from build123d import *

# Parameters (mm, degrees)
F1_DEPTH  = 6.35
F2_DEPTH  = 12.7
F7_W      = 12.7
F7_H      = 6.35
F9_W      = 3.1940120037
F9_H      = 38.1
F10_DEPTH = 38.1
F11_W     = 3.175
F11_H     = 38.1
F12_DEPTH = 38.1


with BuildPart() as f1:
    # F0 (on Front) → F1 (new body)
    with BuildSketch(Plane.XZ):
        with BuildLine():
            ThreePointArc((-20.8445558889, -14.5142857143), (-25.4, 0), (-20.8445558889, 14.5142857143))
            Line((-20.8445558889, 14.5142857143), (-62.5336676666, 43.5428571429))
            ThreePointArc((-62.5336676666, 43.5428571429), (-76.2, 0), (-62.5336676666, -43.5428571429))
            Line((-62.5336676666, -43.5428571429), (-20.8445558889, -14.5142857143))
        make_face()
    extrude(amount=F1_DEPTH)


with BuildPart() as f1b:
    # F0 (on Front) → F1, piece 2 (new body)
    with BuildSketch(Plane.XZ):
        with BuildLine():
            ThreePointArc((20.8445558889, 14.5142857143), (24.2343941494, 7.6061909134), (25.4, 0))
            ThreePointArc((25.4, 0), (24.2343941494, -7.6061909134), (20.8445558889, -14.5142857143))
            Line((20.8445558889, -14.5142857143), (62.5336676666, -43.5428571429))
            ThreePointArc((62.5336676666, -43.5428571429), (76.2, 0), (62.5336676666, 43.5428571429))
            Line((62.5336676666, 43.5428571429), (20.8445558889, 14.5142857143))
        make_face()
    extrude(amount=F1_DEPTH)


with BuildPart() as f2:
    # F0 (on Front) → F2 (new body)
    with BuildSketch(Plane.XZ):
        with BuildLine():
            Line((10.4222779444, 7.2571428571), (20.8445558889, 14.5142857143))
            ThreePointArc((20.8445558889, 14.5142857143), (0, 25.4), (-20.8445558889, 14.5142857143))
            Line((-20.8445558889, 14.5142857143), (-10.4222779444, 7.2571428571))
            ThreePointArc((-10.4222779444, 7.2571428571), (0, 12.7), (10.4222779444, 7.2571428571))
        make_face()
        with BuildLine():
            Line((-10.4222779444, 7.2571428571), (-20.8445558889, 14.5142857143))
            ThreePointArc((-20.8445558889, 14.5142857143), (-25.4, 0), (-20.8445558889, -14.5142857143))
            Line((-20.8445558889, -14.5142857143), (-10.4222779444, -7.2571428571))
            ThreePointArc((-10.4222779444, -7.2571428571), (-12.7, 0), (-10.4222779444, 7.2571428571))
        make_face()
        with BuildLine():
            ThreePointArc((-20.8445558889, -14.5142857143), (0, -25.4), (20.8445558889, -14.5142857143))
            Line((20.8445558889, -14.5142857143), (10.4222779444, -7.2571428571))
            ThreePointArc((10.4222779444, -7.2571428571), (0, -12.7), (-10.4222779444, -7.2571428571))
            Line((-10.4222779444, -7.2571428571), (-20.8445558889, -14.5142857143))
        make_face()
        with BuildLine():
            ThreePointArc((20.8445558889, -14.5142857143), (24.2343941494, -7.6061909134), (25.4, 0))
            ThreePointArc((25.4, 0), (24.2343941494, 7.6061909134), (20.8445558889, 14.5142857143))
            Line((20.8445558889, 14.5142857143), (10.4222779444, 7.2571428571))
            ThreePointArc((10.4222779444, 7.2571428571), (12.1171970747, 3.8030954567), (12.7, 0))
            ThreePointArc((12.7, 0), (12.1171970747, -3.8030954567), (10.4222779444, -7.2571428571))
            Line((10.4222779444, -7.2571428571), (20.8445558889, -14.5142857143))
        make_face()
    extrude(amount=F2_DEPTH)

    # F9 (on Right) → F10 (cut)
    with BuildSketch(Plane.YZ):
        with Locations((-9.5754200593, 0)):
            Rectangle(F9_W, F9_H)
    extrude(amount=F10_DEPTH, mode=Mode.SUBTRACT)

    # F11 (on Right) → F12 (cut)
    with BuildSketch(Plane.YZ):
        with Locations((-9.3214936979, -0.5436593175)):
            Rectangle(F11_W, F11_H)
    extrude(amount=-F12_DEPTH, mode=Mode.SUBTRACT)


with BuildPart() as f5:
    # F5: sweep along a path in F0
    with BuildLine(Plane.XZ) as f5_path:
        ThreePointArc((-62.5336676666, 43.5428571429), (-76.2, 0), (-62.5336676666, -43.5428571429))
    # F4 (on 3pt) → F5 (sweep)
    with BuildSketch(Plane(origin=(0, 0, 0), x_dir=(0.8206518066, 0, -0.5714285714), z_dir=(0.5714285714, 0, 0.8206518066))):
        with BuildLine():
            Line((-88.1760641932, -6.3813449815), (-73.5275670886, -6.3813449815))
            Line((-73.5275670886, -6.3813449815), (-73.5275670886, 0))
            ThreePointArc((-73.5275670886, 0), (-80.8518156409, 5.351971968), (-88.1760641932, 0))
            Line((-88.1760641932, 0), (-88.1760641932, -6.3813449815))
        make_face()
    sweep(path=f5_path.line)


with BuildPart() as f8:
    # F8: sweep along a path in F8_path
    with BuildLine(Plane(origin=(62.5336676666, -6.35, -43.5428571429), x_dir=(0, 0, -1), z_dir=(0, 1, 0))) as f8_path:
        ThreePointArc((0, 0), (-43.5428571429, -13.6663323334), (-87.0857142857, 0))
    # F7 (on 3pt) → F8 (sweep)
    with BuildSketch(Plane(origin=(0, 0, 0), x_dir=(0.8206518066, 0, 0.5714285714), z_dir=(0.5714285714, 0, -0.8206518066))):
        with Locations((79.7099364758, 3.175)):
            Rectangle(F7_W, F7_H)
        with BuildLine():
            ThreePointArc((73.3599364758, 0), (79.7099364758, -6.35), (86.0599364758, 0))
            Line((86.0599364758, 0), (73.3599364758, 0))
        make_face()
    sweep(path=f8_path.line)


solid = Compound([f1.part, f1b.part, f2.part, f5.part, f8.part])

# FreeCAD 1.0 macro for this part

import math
import FreeCAD as App
import Part
import Sketcher
from FreeCAD import Vector
Q = App.Units.Quantity


def add_polygon(sketch, points):
    """Adds a closed chain of lines whose ends are joined by coincident constraints."""
    first, n = sketch.GeometryCount, len(points)
    for a, b in zip(points, points[1:] + points[:1]):
        sketch.addGeometry(Part.LineSegment(App.Vector(*a, 0), App.Vector(*b, 0)), False)
    for i in range(n):
        sketch.addConstraint(Sketcher.Constraint("Coincident", first + i, 2, first + (i + 1) % n, 1))

doc = App.newDocument("Part")
body = doc.addObject("PartDesign::Body", "Body")

# Sketch on XZ plane
sketch1 = body.newObject("Sketcher::SketchObject", "Sketch")
sketch1.AttachmentSupport = (doc.getObject("XZ_Plane"), [""])
sketch1.MapMode = "FlatFace"
sketch1.addGeometry([
    Part.ArcOfCircle(Part.Circle(Vector(0, 0, 0), Vector(0, 0, 1), 25), math.radians(145), math.radians(215)),
    Part.LineSegment(Vector(-21, 15, 0), Vector(-63, 44, 0)),
    Part.ArcOfCircle(Part.Circle(Vector(0, 0, 0), Vector(0, 0, 1), 76), math.radians(145), math.radians(215)),
    Part.LineSegment(Vector(-63, -44, 0), Vector(-21, -15, 0)),
], False)
sketch1.addConstraint([
    Sketcher.Constraint("Coincident", 0, 1, 1, 1),
    Sketcher.Constraint("Coincident", 1, 2, 2, 1),
    Sketcher.Constraint("Coincident", 2, 2, 3, 1),
    Sketcher.Constraint("Coincident", 3, 2, 0, 2),
    Sketcher.Constraint("Coincident", 0, 3, -1, 1),
    Sketcher.Constraint("Coincident", 2, 3, -1, 1),
    Sketcher.Constraint("Vertical", 1, 2, 2, 2),
    Sketcher.Constraint("Vertical", 0, 1, 3, 2),
    Sketcher.Constraint("Radius", 0, Q("1 in")),
    Sketcher.Constraint("Radius", 2, Q("3 in")),
    Sketcher.Constraint("DistanceX", 1, 2, 0, 1, Q("41.689112 mm")),
    Sketcher.Constraint("DistanceY", 3, 2, 0, 1, Q("29.028571 mm")),
])
pad1 = body.newObject("PartDesign::Pad", "Pad")
pad1.Profile = sketch1
pad1.Length = Q("0.25 in")
body2 = doc.addObject("PartDesign::Body", "Body001")

# Sketch on XZ plane
sketch2 = body2.newObject("Sketcher::SketchObject", "Sketch001")
sketch2.AttachmentSupport = (doc.getObject("XZ_Plane001"), [""])
sketch2.MapMode = "FlatFace"
sketch2.addGeometry([
    Part.ArcOfCircle(Part.Circle(Vector(0, 0, 0), Vector(0, 0, 1), 25), math.radians(0), math.radians(35)),  # 0
    Part.ArcOfCircle(Part.Circle(Vector(0, 0, 0), Vector(0, 0, 1), 25), math.radians(-35), math.radians(0)),  # 1
    Part.LineSegment(Vector(21, -15, 0), Vector(63, -44, 0)),  # 2
    Part.ArcOfCircle(Part.Circle(Vector(0, 0, 0), Vector(0, 0, 1), 76), math.radians(-35), math.radians(35)),  # 3
    Part.LineSegment(Vector(63, 44, 0), Vector(21, 15, 0)),  # 4
], False)
sketch2.addConstraint([
    Sketcher.Constraint("Tangent", 0, 1, 1, 2),
    Sketcher.Constraint("Coincident", 1, 1, 2, 1),
    Sketcher.Constraint("Coincident", 2, 2, 3, 1),
    Sketcher.Constraint("Coincident", 3, 2, 4, 1),
    Sketcher.Constraint("Coincident", 4, 2, 0, 2),
    Sketcher.Constraint("Coincident", 0, 3, -1, 1),
    Sketcher.Constraint("Coincident", 3, 3, -1, 1),
    Sketcher.Constraint("Equal", 0, 1),
    Sketcher.Constraint("PointOnObject", 0, 1, -1),
    Sketcher.Constraint("Vertical", 2, 2, 3, 2),
    Sketcher.Constraint("Vertical", 1, 1, 4, 2),
    Sketcher.Constraint("Radius", 0, Q("1 in")),
    Sketcher.Constraint("Radius", 3, Q("3 in")),
    Sketcher.Constraint("DistanceX", 1, 1, 2, 2, Q("41.689112 mm")),
    Sketcher.Constraint("DistanceY", 1, 1, 4, 2, Q("29.028571 mm")),
])
pad2 = body2.newObject("PartDesign::Pad", "Pad001")
pad2.Profile = sketch2
pad2.Length = Q("0.25 in")
body3 = doc.addObject("PartDesign::Body", "Body002")

# Sketch on XZ plane
sketch3 = body3.newObject("Sketcher::SketchObject", "Sketch002")
sketch3.AttachmentSupport = (doc.getObject("XZ_Plane002"), [""])
sketch3.MapMode = "FlatFace"
sketch3.addGeometry([
    Part.ArcOfCircle(Part.Circle(Vector(0, 0, 0), Vector(0, 0, 1), 25), math.radians(35), math.radians(145)),  # 0
    Part.ArcOfCircle(Part.Circle(Vector(0, 0, 0), Vector(0, 0, 1), 25), math.radians(145), math.radians(215)),  # 1
    Part.ArcOfCircle(Part.Circle(Vector(0, 0, 0), Vector(0, 0, 1), 25), math.radians(-145), math.radians(-35)),  # 2
    Part.ArcOfCircle(Part.Circle(Vector(0, 0, 0), Vector(0, 0, 1), 25), math.radians(-35), math.radians(0)),  # 3
    Part.ArcOfCircle(Part.Circle(Vector(0, 0, 0), Vector(0, 0, 1), 25), math.radians(0), math.radians(35)),  # 4
    Part.ArcOfCircle(Part.Circle(Vector(0, 0, 0), Vector(0, 0, 1), 13), math.radians(-145), math.radians(-35)),  # 5
    Part.ArcOfCircle(Part.Circle(Vector(0, 0, 0), Vector(0, 0, 1), 13), math.radians(145), math.radians(215)),  # 6
    Part.ArcOfCircle(Part.Circle(Vector(0, 0, 0), Vector(0, 0, 1), 13), math.radians(35), math.radians(145)),  # 7
    Part.ArcOfCircle(Part.Circle(Vector(0, 0, 0), Vector(0, 0, 1), 13), math.radians(0), math.radians(35)),  # 8
    Part.ArcOfCircle(Part.Circle(Vector(0, 0, 0), Vector(0, 0, 1), 13), math.radians(-35), math.radians(0)),  # 9
], False)
sketch3.addConstraint([
    Sketcher.Constraint("Tangent", 0, 2, 1, 1),
    Sketcher.Constraint("Tangent", 1, 2, 2, 1),
    Sketcher.Constraint("Tangent", 2, 2, 3, 1),
    Sketcher.Constraint("Tangent", 3, 2, 4, 1),
    Sketcher.Constraint("Tangent", 4, 2, 0, 1),
    Sketcher.Constraint("Tangent", 5, 1, 6, 2),
    Sketcher.Constraint("Tangent", 6, 1, 7, 2),
    Sketcher.Constraint("Tangent", 7, 1, 8, 2),
    Sketcher.Constraint("Tangent", 8, 1, 9, 2),
    Sketcher.Constraint("Tangent", 9, 1, 5, 2),
    Sketcher.Constraint("Coincident", 0, 3, -1, 1),
    Sketcher.Constraint("Coincident", 2, 3, -1, 1),
    Sketcher.Constraint("Coincident", 5, 3, -1, 1),
    Sketcher.Constraint("Coincident", 7, 3, -1, 1),
    Sketcher.Constraint("PointOnObject", 3, 2, -1),
    Sketcher.Constraint("PointOnObject", 8, 1, -1),
    Sketcher.Constraint("Horizontal", 1, 2, 2, 2),
    Sketcher.Constraint("Horizontal", 0, 2, 4, 2),
    Sketcher.Constraint("Horizontal", 6, 1, 7, 1),
    Sketcher.Constraint("Horizontal", 5, 1, 9, 1),
    Sketcher.Constraint("Vertical", 0, 2, 1, 2),
    Sketcher.Constraint("Vertical", 5, 1, 6, 1),
    Sketcher.Constraint("Radius", 0, Q("1 in")),
    Sketcher.Constraint("Radius", 5, Q("0.5 in")),
    Sketcher.Constraint("DistanceX", 0, 2, -1, 1, Q("20.844556 mm")),
    Sketcher.Constraint("DistanceX", 5, 1, -1, 1, Q("10.422278 mm")),
])
pad3 = body3.newObject("PartDesign::Pad", "Pad002")
pad3.Profile = sketch3
pad3.Length = Q("0.5 in")

# Sketch on YZ plane
sketch4 = body3.newObject("Sketcher::SketchObject", "Sketch003")
sketch4.AttachmentSupport = (doc.getObject("YZ_Plane002"), [""])
sketch4.MapMode = "FlatFace"
add_polygon(sketch4, [(-11.2, 19.1), (-11.2, -19.1), (-8, -19.1), (-8, 19.1)])  # lines 0-3
sketch4.addConstraint([
    Sketcher.Constraint("Vertical", 0),
    Sketcher.Constraint("Horizontal", 1),
    Sketcher.Constraint("Vertical", 2),
    Sketcher.Constraint("Horizontal", 3),
    Sketcher.Constraint("DistanceY", 0, 2, 0, 1, Q("1.5 in")),
    Sketcher.Constraint("DistanceY", 0, 2, -1, 1, Q("0.75 in")),
    Sketcher.Constraint("DistanceX", 1, 1, 1, 2, Q("3.194012 mm")),
    Sketcher.Constraint("DistanceX", 0, 2, -1, 1, Q("11.172426 mm")),
])
pocket1 = body3.newObject("PartDesign::Pocket", "Pocket")
pocket1.Profile = sketch4
pocket1.Length = Q("1.5 in")
pocket1.Reversed = True

# Sketch on YZ plane
sketch5 = body3.newObject("Sketcher::SketchObject", "Sketch004")
sketch5.AttachmentSupport = (doc.getObject("YZ_Plane002"), [""])
sketch5.MapMode = "FlatFace"
add_polygon(sketch5, [(-10.9, 18.5), (-10.9, -19.6), (-7.7, -19.6), (-7.7, 18.5)])  # lines 0-3
sketch5.addConstraint([
    Sketcher.Constraint("Vertical", 0),
    Sketcher.Constraint("Horizontal", 1),
    Sketcher.Constraint("Vertical", 2),
    Sketcher.Constraint("Horizontal", 3),
    Sketcher.Constraint("DistanceY", 0, 2, 0, 1, Q("1.5 in")),
    Sketcher.Constraint("DistanceX", 1, 1, 1, 2, Q("0.125 in")),
    Sketcher.Constraint("DistanceY", 0, 2, -1, 1, Q("19.593659 mm")),
    Sketcher.Constraint("DistanceX", 0, 2, -1, 1, Q("10.908994 mm")),
])
pocket2 = body3.newObject("PartDesign::Pocket", "Pocket001")
pocket2.Profile = sketch5
pocket2.Length = Q("1.5 in")
body4 = doc.addObject("PartDesign::Body", "Body003")

# Sketch on an angled plane
sketch6 = body4.newObject("Sketcher::SketchObject", "Sketch005")
sketch6.Placement = App.Placement(Vector(0, 0, 0), App.Rotation(Vector(0.820651807, 0, -0.571428571), Vector(0, 1, 0), Vector(0.571428571, 0, 0.820651807), "ZXY"))
sketch6.addGeometry([
    Part.LineSegment(Vector(-88, -6, 0), Vector(-74, -6, 0)),
    Part.LineSegment(Vector(-74, -6, 0), Vector(-74, 0, 0)),
    Part.ArcOfCircle(Part.Circle(Vector(-81, -2, 0), Vector(0, 0, 1), 8), math.radians(18), math.radians(162)),
    Part.LineSegment(Vector(-88, 0, 0), Vector(-88, -6, 0)),
], False)
sketch6.addConstraint([
    Sketcher.Constraint("Coincident", 0, 2, 1, 1),
    Sketcher.Constraint("Coincident", 1, 2, 2, 1),
    Sketcher.Constraint("Coincident", 2, 2, 3, 1),
    Sketcher.Constraint("Coincident", 3, 2, 0, 1),
    Sketcher.Constraint("Horizontal", 0),
    Sketcher.Constraint("Vertical", 1),
    Sketcher.Constraint("Vertical", 3),
    Sketcher.Constraint("PointOnObject", 1, 2, -1),
    Sketcher.Constraint("PointOnObject", 2, 2, -1),
    Sketcher.Constraint("Radius", 2, Q("7.687654 mm")),
    Sketcher.Constraint("DistanceX", 0, 1, 0, 2, Q("14.648497 mm")),
    Sketcher.Constraint("DistanceY", 1, 1, 1, 2, Q("6.381345 mm")),
    Sketcher.Constraint("DistanceX", 2, 3, -1, 1, Q("80.851816 mm")),
])

# Sketch on XZ plane
sketch7 = body4.newObject("Sketcher::SketchObject", "Sketch006")
sketch7.AttachmentSupport = (doc.getObject("XZ_Plane003"), [""])
sketch7.MapMode = "FlatFace"
sketch7.addGeometry(Part.ArcOfCircle(Part.Circle(Vector(0, 0, 0), Vector(0, 0, 1), 76), math.radians(145), math.radians(215)), False)
sketch7.addConstraint([
    Sketcher.Constraint("Coincident", 0, 3, -1, 1),
    Sketcher.Constraint("Radius", 0, Q("3 in")),
    Sketcher.Constraint("DistanceX", 0, 1, -1, 1, Q("62.533668 mm")),
    Sketcher.Constraint("DistanceX", 0, 2, -1, 1, Q("62.533668 mm")),
])
doc.recompute()

additivepipe = body4.newObject("PartDesign::AdditivePipe", "AdditivePipe")
additivepipe.Profile = sketch6
additivepipe.Spine = (sketch7, ["Edge1"])
body5 = doc.addObject("PartDesign::Body", "Body004")

# Sketch on an angled plane
sketch8 = body5.newObject("Sketcher::SketchObject", "Sketch007")
sketch8.Placement = App.Placement(Vector(0, 0, 0), App.Rotation(Vector(0.820651807, 0, 0.571428571), Vector(0, -1, 0), Vector(0.571428571, 0, -0.820651807), "ZXY"))
sketch8.addGeometry([
    Part.LineSegment(Vector(73, 6, 0), Vector(73, 0, 0)),
    Part.ArcOfCircle(Part.Circle(Vector(80, 0, 0), Vector(0, 0, 1), 6), math.radians(180), math.radians(360)),
    Part.LineSegment(Vector(86, 0, 0), Vector(86, 6, 0)),
    Part.LineSegment(Vector(86, 6, 0), Vector(73, 6, 0)),
], False)
sketch8.addConstraint([
    Sketcher.Constraint("Tangent", 0, 2, 1, 1),
    Sketcher.Constraint("Tangent", 1, 2, 2, 1),
    Sketcher.Constraint("Coincident", 2, 2, 3, 1),
    Sketcher.Constraint("Coincident", 3, 2, 0, 1),
    Sketcher.Constraint("Vertical", 0),
    Sketcher.Constraint("Vertical", 2),
    Sketcher.Constraint("Horizontal", 3),
    Sketcher.Constraint("PointOnObject", 1, 3, -1),
    Sketcher.Constraint("Radius", 1, Q("0.25 in")),
    Sketcher.Constraint("DistanceY", 0, 2, 0, 1, Q("0.25 in")),
    Sketcher.Constraint("DistanceX", -1, 1, 1, 3, Q("79.709936 mm")),
])

# Sketch on XZ plane
sketch9 = body5.newObject("Sketcher::SketchObject", "Sketch008")
sketch9.AttachmentSupport = (doc.getObject("XZ_Plane004"), [""])
sketch9.MapMode = "FlatFace"
sketch9.AttachmentOffset = App.Placement(Vector(0, 0, 0.25 * 25.4), App.Rotation())
sketch9.addGeometry(Part.ArcOfCircle(Part.Circle(Vector(0, 0, 0), Vector(0, 0, 1), 76), math.radians(-35), math.radians(35)), False)
sketch9.addConstraint([
    Sketcher.Constraint("Coincident", 0, 3, -1, 1),
    Sketcher.Constraint("Radius", 0, Q("3 in")),
    Sketcher.Constraint("DistanceX", -1, 1, 0, 1, Q("62.533668 mm")),
    Sketcher.Constraint("DistanceX", -1, 1, 0, 2, Q("62.533668 mm")),
])
doc.recompute()

additivepipe2 = body5.newObject("PartDesign::AdditivePipe", "AdditivePipe001")
additivepipe2.Profile = sketch8
additivepipe2.Spine = (sketch9, ["Edge1"])

doc.recompute()
